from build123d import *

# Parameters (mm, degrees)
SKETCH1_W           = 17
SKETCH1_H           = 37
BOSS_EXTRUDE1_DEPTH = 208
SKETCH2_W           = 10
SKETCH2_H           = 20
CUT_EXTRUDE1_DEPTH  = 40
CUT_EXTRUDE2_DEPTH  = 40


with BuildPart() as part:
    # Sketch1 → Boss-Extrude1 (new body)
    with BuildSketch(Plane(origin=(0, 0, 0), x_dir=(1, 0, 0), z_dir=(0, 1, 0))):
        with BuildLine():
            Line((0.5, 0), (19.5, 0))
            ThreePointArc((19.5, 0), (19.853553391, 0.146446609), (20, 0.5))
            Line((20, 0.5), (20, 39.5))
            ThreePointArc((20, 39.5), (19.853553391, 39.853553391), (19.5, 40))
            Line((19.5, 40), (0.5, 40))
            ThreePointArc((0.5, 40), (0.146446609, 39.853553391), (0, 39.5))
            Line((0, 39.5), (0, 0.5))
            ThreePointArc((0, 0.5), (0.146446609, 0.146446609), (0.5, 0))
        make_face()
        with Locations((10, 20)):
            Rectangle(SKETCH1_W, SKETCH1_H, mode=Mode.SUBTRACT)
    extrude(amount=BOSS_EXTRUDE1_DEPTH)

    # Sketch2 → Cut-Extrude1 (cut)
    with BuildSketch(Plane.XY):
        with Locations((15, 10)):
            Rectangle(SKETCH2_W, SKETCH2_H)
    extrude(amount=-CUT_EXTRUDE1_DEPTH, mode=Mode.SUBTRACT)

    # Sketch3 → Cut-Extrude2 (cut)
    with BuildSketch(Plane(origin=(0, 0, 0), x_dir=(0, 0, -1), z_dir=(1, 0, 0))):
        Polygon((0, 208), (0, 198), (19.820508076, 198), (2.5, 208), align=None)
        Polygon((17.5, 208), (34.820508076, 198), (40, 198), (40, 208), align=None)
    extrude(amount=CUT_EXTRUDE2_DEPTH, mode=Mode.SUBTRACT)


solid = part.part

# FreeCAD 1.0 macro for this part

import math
import FreeCAD as App
import Part
import Sketcher
Q = App.Units.Quantity


def add_polygon(sketch, points):
    """Adds a closed chain of lines whose ends are joined by coincident constraints."""
    first, n = sketch.GeometryCount, len(points)
    for a, b in zip(points, points[1:] + points[:1]):
        sketch.addGeometry(Part.LineSegment(App.Vector(*a, 0), App.Vector(*b, 0)), False)
    for i in range(n):
        sketch.addConstraint(Sketcher.Constraint("Coincident", first + i, 2, first + (i + 1) % n, 1))

doc = App.newDocument("Part")
body = doc.addObject("PartDesign::Body", "Body")

# Sketch on XZ plane
sketch1 = doc.addObject("Sketcher::SketchObject", "Sketch")
body.addObject(sketch1)
sketch1.AttachmentSupport = (doc.XZ_Plane, [""])
sketch1.MapMode = "FlatFace"
sketch1.addGeometry(Part.LineSegment(App.Vector(0.5, 0, 0), App.Vector(19.5, 0, 0)), False)  # 0
sketch1.addGeometry(Part.ArcOfCircle(Part.Circle(App.Vector(19.5, -0.5, 0), App.Vector(0, 0, 1), 0.5), math.radians(0), math.radians(90)), False)  # 1
sketch1.addGeometry(Part.LineSegment(App.Vector(20, -0.5, 0), App.Vector(20, -39.5, 0)), False)  # 2
sketch1.addGeometry(Part.ArcOfCircle(Part.Circle(App.Vector(19.5, -39.5, 0), App.Vector(0, 0, 1), 0.5), math.radians(-90), math.radians(0)), False)  # 3
sketch1.addGeometry(Part.LineSegment(App.Vector(19.5, -40, 0), App.Vector(0.5, -40, 0)), False)  # 4
sketch1.addGeometry(Part.ArcOfCircle(Part.Circle(App.Vector(0.5, -39.5, 0), App.Vector(0, 0, 1), 0.5), math.radians(180), math.radians(270)), False)  # 5
sketch1.addGeometry(Part.LineSegment(App.Vector(0, -39.5, 0), App.Vector(0, -0.5, 0)), False)  # 6
sketch1.addGeometry(Part.ArcOfCircle(Part.Circle(App.Vector(0.5, -0.5, 0), App.Vector(0, 0, 1), 0.5), math.radians(90), math.radians(180)), False)  # 7
add_polygon(sketch1, [(18.5, -1.5), (1.5, -1.5), (1.5, -38.5), (18.5, -38.5)])  # lines 8-11
sketch1.addConstraint([
    Sketcher.Constraint("Tangent", 0, 2, 1, 2),
    Sketcher.Constraint("Tangent", 1, 1, 2, 1),
    Sketcher.Constraint("Tangent", 2, 2, 3, 2),
    Sketcher.Constraint("Tangent", 3, 1, 4, 1),
    Sketcher.Constraint("Tangent", 4, 2, 5, 2),
    Sketcher.Constraint("Tangent", 5, 1, 6, 1),
    Sketcher.Constraint("Tangent", 6, 2, 7, 2),
    Sketcher.Constraint("Tangent", 7, 1, 0, 1),
    Sketcher.Constraint("Horizontal", 0),
    Sketcher.Constraint("Vertical", 2),
    Sketcher.Constraint("Horizontal", 4),
    Sketcher.Constraint("Vertical", 6),
    Sketcher.Constraint("Horizontal", 8),
    Sketcher.Constraint("Vertical", 9),
    Sketcher.Constraint("Horizontal", 10),
    Sketcher.Constraint("Vertical", 11),
    Sketcher.Constraint("Equal", 1, 3),
    Sketcher.Constraint("Equal", 3, 5),
    Sketcher.Constraint("Equal", 5, 7),
    Sketcher.Constraint("PointOnObject", 0, 2, -1),
    Sketcher.Constraint("PointOnObject", 5, 1, -2),
    Sketcher.Constraint("Radius", 1, Q("0.5 mm")),
    Sketcher.Constraint("DistanceX", 0, 1, 0, 2, Q("19 mm")),
    Sketcher.Constraint("DistanceX", 8, 2, 8, 1, Q("17 mm")),
    Sketcher.Constraint("DistanceY", 2, 2, 2, 1, Q("39 mm")),
    Sketcher.Constraint("DistanceY", 9, 2, 9, 1, Q("37 mm")),
    Sketcher.Constraint("DistanceX", 7, 3, 8, 2, Q("1 mm")),
    Sketcher.Constraint("DistanceY", 8, 2, 7, 3, Q("1 mm")),
])
pad1 = doc.addObject("PartDesign::Pad", "Pad")
body.addObject(pad1)
pad1.Profile = sketch1
pad1.Length = 208
pad1.Reversed = True

# Sketch on XY plane
sketch2 = doc.addObject("Sketcher::SketchObject", "Sketch001")
body.addObject(sketch2)
sketch2.AttachmentSupport = (doc.XY_Plane, [""])
sketch2.MapMode = "FlatFace"
add_polygon(sketch2, [(10, 20), (10, 0), (20, 0), (20, 20)])  # lines 0-3
sketch2.addConstraint([
    Sketcher.Constraint("Vertical", 0),
    Sketcher.Constraint("Horizontal", 1),
    Sketcher.Constraint("Vertical", 2),
    Sketcher.Constraint("Horizontal", 3),
    Sketcher.Constraint("PointOnObject", 0, 2, -1),
    Sketcher.Constraint("DistanceX", 1, 1, 1, 2, Q("10 mm")),
    Sketcher.Constraint("DistanceY", 0, 2, 0, 1, Q("20 mm")),
    Sketcher.Constraint("DistanceX", -1, 1, 0, 2, Q("10 mm")),
])
pocket1 = doc.addObject("PartDesign::Pocket", "Pocket")
body.addObject(pocket1)
pocket1.Profile = sketch2
pocket1.Length = 40

# Sketch on YZ plane
sketch3 = doc.addObject("Sketcher::SketchObject", "Sketch002")
body.addObject(sketch3)
sketch3.AttachmentSupport = (doc.YZ_Plane, [""])
sketch3.MapMode = "FlatFace"
add_polygon(sketch3, [(208, 0), (198, 0), (198, -19.8), (208, -2.5)])  # lines 0-3
add_polygon(sketch3, [(208, -17.5), (198, -34.8), (198, -40), (208, -40)])  # lines 4-7
sketch3.addConstraint([
    Sketcher.Constraint("Horizontal", 0),
    Sketcher.Constraint("Vertical", 1),
    Sketcher.Constraint("Vertical", 3),
    Sketcher.Constraint("Vertical", 5),
    Sketcher.Constraint("Horizontal", 6),
    Sketcher.Constraint("Vertical", 7),
    Sketcher.Constraint("PointOnObject", 0, 2, -1),
    Sketcher.Constraint("Parallel", 2, 4),
    Sketcher.Constraint("Vertical", 1, 2, 4, 2),
    Sketcher.Constraint("Vertical", 3, 2, 6, 2),
    Sketcher.Constraint("DistanceX", 0, 2, 0, 1, Q("10 mm")),
    Sketcher.Constraint("Angle", 2, Q("60 deg")),
    Sketcher.Constraint("DistanceY", 3, 1, 3, 2, Q("2.5 mm")),
    Sketcher.Constraint("DistanceY", 7, 1, 7, 2, Q("22.5 mm")),
    Sketcher.Constraint("DistanceX", -1, 1, 0, 2, Q("198 mm")),
    Sketcher.Constraint("DistanceY", 5, 2, -1, 1, Q("40 mm")),
])
pocket2 = doc.addObject("PartDesign::Pocket", "Pocket001")
body.addObject(pocket2)
pocket2.Profile = sketch3
pocket2.Length = 40
pocket2.Reversed = True

doc.recompute()
